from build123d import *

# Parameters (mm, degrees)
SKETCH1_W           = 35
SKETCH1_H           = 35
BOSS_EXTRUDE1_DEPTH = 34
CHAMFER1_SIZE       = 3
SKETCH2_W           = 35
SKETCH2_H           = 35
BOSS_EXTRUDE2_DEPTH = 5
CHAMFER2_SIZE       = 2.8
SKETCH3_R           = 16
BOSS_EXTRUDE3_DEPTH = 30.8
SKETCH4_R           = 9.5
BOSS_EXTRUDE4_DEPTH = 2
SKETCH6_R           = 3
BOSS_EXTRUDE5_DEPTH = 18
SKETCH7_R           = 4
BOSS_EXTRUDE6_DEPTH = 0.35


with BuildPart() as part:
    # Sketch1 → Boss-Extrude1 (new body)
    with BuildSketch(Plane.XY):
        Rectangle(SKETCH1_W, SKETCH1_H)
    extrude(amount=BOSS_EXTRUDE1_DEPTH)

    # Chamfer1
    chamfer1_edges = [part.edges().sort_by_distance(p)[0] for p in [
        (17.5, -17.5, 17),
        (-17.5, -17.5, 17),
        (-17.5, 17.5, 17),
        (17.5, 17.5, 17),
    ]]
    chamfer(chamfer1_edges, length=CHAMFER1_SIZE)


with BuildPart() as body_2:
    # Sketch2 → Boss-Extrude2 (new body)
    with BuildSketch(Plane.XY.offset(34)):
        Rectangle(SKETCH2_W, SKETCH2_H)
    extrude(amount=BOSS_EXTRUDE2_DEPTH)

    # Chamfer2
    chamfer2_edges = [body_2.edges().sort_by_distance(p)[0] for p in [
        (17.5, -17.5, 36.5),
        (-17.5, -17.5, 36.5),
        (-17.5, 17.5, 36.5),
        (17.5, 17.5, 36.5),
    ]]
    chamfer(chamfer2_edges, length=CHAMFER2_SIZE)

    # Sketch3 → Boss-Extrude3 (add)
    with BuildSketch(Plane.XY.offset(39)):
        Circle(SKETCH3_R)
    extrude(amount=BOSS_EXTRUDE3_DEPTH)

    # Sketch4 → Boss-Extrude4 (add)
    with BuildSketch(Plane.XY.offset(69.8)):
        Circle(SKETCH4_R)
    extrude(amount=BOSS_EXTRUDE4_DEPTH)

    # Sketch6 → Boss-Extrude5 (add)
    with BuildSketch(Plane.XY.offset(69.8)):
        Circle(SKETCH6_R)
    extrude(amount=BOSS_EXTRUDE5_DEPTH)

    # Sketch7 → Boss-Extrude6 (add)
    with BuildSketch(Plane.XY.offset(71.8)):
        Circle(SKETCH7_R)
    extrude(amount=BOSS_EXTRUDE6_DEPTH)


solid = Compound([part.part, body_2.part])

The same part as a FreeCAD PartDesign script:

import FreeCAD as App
import Part
import Sketcher


def edges_at(feature, points):
    """Names of the edges that pass closest to the given points."""
    edges = feature.Shape.Edges
    near = lambda p: min(range(len(edges)), key=lambda i: edges[i].distToShape(Part.Vertex(*p))[0])
    return sorted({f"Edge{near(p) + 1}" for p in points})


def add_polygon(sketch, points):
    """Adds a closed chain of lines whose ends are joined by coincident constraints."""
    first, n = sketch.GeometryCount, len(points)
    for a, b in zip(points, points[1:] + points[:1]):
        sketch.addGeometry(Part.LineSegment(App.Vector(*a, 0), App.Vector(*b, 0)), False)
    for i in range(n):
        sketch.addConstraint(Sketcher.Constraint("Coincident", first + i, 2, first + (i + 1) % n, 1))

doc = App.newDocument("Part")
body = doc.addObject("PartDesign::Body", "Body")

# Sketch on XY plane
sketch1 = body.newObject("Sketcher::SketchObject", "Sketch")
sketch1.AttachmentSupport = (doc.getObject("XY_Plane"), [""])
sketch1.MapMode = "FlatFace"
add_polygon(sketch1, [(-17.5, 17.5), (-17.5, -17.5), (17.5, -17.5), (17.5, 17.5)])  # lines 0-3
sketch1.addConstraint([
    Sketcher.Constraint("Vertical", 0),
    Sketcher.Constraint("Horizontal", 1),
    Sketcher.Constraint("Vertical", 2),
    Sketcher.Constraint("Horizontal", 3),
    Sketcher.Constraint("Symmetric", 0, 2, 2, 2, -1, 1),
    Sketcher.Constraint("Equal", 3, 0),
    Sketcher.Constraint("DistanceX", 1, 1, 1, 2, 35.0),
])
pad1 = body.newObject("PartDesign::Pad", "Pad")
pad1.Profile = sketch1
pad1.Length = 34
doc.recompute()

chamfer = body.newObject("PartDesign::Chamfer", "Chamfer")
chamfer.Base = (pad1, edges_at(pad1, [
    (17.5, -17.5, 17),
    (-17.5, -17.5, 17),
    (-17.5, 17.5, 17),
    (17.5, 17.5, 17),
]))
chamfer.Size = 3
body2 = doc.addObject("PartDesign::Body", "Body001")

# Sketch on XY plane
sketch2 = body2.newObject("Sketcher::SketchObject", "Sketch001")
sketch2.AttachmentSupport = (doc.getObject("XY_Plane001"), [""])
sketch2.MapMode = "FlatFace"
sketch2.AttachmentOffset = App.Placement(App.Vector(0, 0, 34), App.Rotation())
add_polygon(sketch2, [(-17.5, 17.5), (-17.5, -17.5), (17.5, -17.5), (17.5, 17.5)])  # lines 0-3
sketch2.addConstraint([
    Sketcher.Constraint("Vertical", 0),
    Sketcher.Constraint("Horizontal", 1),
    Sketcher.Constraint("Vertical", 2),
    Sketcher.Constraint("Horizontal", 3),
    Sketcher.Constraint("Symmetric", 0, 2, 2, 2, -1, 1),
    Sketcher.Constraint("Equal", 3, 0),
    Sketcher.Constraint("DistanceX", 1, 1, 1, 2, 35.0),
])
pad2 = body2.newObject("PartDesign::Pad", "Pad001")
pad2.Profile = sketch2
pad2.Length = 5
doc.recompute()

chamfer2 = body2.newObject("PartDesign::Chamfer", "Chamfer001")
chamfer2.Base = (pad2, edges_at(pad2, [
    (17.5, -17.5, 36.5),
    (-17.5, -17.5, 36.5),
    (-17.5, 17.5, 36.5),
    (17.5, 17.5, 36.5),
]))
chamfer2.Size = 2.8

# Sketch on XY plane
sketch3 = body2.newObject("Sketcher::SketchObject", "Sketch002")
sketch3.AttachmentSupport = (doc.getObject("XY_Plane001"), [""])
sketch3.MapMode = "FlatFace"
sketch3.AttachmentOffset = App.Placement(App.Vector(0, 0, 39), App.Rotation())
sketch3.addGeometry(Part.Circle(App.Vector(0, 0, 0), App.Vector(0, 0, 1), 16), False)
sketch3.addConstraint([
    Sketcher.Constraint("Coincident", 0, 3, -1, 1),
    Sketcher.Constraint("Diameter", 0, 32.0),
])
pad3 = body2.newObject("PartDesign::Pad", "Pad002")
pad3.Profile = sketch3
pad3.Length = 30.8

# Sketch on XY plane
sketch4 = body2.newObject("Sketcher::SketchObject", "Sketch003")
sketch4.AttachmentSupport = (doc.getObject("XY_Plane001"), [""])
sketch4.MapMode = "FlatFace"
sketch4.AttachmentOffset = App.Placement(App.Vector(0, 0, 69.8), App.Rotation())
sketch4.addGeometry(Part.Circle(App.Vector(0, 0, 0), App.Vector(0, 0, 1), 9.5), False)
sketch4.addConstraint([
    Sketcher.Constraint("Coincident", 0, 3, -1, 1),
    Sketcher.Constraint("Diameter", 0, 19.0),
])
pad4 = body2.newObject("PartDesign::Pad", "Pad003")
pad4.Profile = sketch4
pad4.Length = 2

# Sketch on XY plane
sketch5 = body2.newObject("Sketcher::SketchObject", "Sketch004")
sketch5.AttachmentSupport = (doc.getObject("XY_Plane001"), [""])
sketch5.MapMode = "FlatFace"
sketch5.AttachmentOffset = App.Placement(App.Vector(0, 0, 69.8), App.Rotation())
sketch5.addGeometry(Part.Circle(App.Vector(0, 0, 0), App.Vector(0, 0, 1), 3), False)
sketch5.addConstraint([
    Sketcher.Constraint("Coincident", 0, 3, -1, 1),
    Sketcher.Constraint("Diameter", 0, 6.0),
])
pad5 = body2.newObject("PartDesign::Pad", "Pad004")
pad5.Profile = sketch5
pad5.Length = 18

# Sketch on XY plane
sketch6 = body2.newObject("Sketcher::SketchObject", "Sketch005")
sketch6.AttachmentSupport = (doc.getObject("XY_Plane001"), [""])
sketch6.MapMode = "FlatFace"
sketch6.AttachmentOffset = App.Placement(App.Vector(0, 0, 71.8), App.Rotation())
sketch6.addGeometry(Part.Circle(App.Vector(0, 0, 0), App.Vector(0, 0, 1), 4), False)
sketch6.addConstraint([
    Sketcher.Constraint("Coincident", 0, 3, -1, 1),
    Sketcher.Constraint("Diameter", 0, 8.0),
])
pad6 = body2.newObject("PartDesign::Pad", "Pad005")
pad6.Profile = sketch6
pad6.Length = 0.35

doc.recompute()
